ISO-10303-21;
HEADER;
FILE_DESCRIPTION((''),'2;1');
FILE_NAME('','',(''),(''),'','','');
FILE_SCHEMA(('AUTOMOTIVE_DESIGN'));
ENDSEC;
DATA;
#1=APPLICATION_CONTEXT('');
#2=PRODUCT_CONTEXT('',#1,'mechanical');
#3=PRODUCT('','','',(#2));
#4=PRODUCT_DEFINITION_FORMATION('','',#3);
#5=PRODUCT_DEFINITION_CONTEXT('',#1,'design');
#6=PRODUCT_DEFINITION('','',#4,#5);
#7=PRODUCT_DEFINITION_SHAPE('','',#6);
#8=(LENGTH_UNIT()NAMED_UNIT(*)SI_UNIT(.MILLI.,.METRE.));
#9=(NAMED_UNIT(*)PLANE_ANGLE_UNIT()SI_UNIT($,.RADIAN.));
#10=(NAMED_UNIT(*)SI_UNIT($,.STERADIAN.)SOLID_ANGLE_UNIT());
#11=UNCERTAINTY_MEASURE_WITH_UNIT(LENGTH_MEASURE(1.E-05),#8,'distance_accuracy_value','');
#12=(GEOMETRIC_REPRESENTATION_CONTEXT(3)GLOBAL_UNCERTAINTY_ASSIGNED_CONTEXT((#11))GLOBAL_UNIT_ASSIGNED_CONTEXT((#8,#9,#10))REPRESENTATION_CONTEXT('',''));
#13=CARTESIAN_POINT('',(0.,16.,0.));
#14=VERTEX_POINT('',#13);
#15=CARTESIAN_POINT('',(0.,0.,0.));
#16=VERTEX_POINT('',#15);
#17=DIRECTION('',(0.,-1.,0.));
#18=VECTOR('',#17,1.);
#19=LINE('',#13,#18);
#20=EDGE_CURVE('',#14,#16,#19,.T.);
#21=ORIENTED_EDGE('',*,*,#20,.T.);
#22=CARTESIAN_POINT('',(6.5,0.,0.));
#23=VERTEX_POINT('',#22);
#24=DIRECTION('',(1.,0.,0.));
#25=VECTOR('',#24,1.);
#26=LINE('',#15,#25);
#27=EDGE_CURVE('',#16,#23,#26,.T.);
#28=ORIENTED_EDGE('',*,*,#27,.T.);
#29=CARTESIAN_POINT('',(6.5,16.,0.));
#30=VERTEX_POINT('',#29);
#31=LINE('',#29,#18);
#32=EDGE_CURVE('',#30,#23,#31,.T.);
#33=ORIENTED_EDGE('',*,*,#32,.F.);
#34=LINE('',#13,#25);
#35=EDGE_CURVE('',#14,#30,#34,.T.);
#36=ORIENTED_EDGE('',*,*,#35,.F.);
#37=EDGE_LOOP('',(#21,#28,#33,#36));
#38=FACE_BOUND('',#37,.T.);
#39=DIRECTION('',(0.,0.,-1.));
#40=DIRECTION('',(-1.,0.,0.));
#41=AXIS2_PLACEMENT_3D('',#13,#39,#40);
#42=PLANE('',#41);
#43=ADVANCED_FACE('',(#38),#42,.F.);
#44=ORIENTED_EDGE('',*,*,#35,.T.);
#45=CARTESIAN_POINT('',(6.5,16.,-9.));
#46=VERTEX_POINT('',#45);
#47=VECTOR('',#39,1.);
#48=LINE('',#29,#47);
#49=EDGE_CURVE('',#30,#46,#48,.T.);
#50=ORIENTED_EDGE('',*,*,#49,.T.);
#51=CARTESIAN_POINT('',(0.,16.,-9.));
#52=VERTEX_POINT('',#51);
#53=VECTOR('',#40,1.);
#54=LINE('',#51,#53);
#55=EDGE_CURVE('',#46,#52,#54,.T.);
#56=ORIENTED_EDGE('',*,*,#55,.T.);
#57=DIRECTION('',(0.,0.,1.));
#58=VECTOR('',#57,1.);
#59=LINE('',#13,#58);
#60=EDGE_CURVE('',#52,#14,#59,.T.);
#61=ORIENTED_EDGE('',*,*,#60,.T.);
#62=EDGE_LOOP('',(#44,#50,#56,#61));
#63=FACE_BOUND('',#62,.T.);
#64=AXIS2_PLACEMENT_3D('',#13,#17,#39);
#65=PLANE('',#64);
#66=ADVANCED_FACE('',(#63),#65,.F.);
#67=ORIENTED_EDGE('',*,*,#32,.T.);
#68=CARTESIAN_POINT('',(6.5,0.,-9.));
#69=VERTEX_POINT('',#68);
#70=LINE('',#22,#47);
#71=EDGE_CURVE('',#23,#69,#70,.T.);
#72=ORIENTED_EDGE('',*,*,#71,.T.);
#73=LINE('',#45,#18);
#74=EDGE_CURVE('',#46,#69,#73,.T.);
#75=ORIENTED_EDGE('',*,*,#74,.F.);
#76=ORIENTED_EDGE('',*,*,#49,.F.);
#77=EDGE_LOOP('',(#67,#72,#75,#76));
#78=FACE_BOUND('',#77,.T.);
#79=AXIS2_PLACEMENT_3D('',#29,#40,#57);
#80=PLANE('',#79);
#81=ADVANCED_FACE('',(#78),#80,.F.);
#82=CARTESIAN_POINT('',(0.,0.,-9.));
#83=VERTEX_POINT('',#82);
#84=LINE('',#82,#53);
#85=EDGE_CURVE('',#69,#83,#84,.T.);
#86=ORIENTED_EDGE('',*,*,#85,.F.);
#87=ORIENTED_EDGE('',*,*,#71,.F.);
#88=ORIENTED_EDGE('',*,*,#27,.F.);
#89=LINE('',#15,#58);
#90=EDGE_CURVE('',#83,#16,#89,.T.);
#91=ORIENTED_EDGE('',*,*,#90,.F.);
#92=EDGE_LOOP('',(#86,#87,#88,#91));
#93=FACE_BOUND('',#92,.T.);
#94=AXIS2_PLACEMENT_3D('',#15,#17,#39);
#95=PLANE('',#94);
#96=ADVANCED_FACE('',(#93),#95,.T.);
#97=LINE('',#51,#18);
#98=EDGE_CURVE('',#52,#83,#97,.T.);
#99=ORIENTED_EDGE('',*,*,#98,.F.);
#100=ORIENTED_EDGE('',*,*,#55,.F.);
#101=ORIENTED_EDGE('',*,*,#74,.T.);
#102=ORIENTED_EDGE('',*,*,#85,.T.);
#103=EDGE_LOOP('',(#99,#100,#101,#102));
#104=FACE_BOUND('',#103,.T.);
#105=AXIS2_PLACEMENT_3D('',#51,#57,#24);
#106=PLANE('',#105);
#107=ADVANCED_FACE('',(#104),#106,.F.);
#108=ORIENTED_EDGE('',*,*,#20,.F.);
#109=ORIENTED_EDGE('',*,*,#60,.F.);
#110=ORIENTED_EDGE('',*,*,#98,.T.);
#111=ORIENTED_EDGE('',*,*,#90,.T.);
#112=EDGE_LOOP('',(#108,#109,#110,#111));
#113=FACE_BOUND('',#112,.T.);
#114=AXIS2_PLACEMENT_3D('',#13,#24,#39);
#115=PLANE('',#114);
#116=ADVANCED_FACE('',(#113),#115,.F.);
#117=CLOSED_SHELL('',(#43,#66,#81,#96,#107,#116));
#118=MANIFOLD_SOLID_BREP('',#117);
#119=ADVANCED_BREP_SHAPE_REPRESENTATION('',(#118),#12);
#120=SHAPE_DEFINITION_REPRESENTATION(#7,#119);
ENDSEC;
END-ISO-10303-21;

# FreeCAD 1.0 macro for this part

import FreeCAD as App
import Part
import Sketcher
from FreeCAD import Vector


def add_polygon(sketch, points):
    """Adds a closed chain of lines whose ends are joined by coincident constraints."""
    first, n = sketch.GeometryCount, len(points)
    for a, b in zip(points, points[1:] + points[:1]):
        sketch.addGeometry(Part.LineSegment(App.Vector(*a, 0), App.Vector(*b, 0)), False)
    for i in range(n):
        sketch.addConstraint(Sketcher.Constraint("Coincident", first + i, 2, first + (i + 1) % n, 1))

doc = App.newDocument("Part")
body = doc.addObject("PartDesign::Body", "Body")

sketch1 = body.newObject("Sketcher::SketchObject", "Sketch")
sketch1.AttachmentSupport = (doc.getObject("XZ_Plane"), [""])
sketch1.MapMode = "FlatFace"
add_polygon(sketch1, [(0, -9), (0, 0), (6, 0), (6, -9)])
sketch1.addConstraint([
    Sketcher.Constraint("Vertical", 0),
    Sketcher.Constraint("Horizontal", 1),
    Sketcher.Constraint("Vertical", 2),
    Sketcher.Constraint("Horizontal", 3),
    Sketcher.Constraint("Coincident", 0, 2, -1, 1),
    Sketcher.Constraint("DistanceY", 0, 1, 0, 2, 9.0),
    Sketcher.Constraint("DistanceX", 1, 1, 1, 2, 6.5),
])
pad1 = body.newObject("PartDesign::Pad", "Pad")
pad1.Profile = sketch1
pad1.Length = 16
pad1.Reversed = True

doc.recompute()
